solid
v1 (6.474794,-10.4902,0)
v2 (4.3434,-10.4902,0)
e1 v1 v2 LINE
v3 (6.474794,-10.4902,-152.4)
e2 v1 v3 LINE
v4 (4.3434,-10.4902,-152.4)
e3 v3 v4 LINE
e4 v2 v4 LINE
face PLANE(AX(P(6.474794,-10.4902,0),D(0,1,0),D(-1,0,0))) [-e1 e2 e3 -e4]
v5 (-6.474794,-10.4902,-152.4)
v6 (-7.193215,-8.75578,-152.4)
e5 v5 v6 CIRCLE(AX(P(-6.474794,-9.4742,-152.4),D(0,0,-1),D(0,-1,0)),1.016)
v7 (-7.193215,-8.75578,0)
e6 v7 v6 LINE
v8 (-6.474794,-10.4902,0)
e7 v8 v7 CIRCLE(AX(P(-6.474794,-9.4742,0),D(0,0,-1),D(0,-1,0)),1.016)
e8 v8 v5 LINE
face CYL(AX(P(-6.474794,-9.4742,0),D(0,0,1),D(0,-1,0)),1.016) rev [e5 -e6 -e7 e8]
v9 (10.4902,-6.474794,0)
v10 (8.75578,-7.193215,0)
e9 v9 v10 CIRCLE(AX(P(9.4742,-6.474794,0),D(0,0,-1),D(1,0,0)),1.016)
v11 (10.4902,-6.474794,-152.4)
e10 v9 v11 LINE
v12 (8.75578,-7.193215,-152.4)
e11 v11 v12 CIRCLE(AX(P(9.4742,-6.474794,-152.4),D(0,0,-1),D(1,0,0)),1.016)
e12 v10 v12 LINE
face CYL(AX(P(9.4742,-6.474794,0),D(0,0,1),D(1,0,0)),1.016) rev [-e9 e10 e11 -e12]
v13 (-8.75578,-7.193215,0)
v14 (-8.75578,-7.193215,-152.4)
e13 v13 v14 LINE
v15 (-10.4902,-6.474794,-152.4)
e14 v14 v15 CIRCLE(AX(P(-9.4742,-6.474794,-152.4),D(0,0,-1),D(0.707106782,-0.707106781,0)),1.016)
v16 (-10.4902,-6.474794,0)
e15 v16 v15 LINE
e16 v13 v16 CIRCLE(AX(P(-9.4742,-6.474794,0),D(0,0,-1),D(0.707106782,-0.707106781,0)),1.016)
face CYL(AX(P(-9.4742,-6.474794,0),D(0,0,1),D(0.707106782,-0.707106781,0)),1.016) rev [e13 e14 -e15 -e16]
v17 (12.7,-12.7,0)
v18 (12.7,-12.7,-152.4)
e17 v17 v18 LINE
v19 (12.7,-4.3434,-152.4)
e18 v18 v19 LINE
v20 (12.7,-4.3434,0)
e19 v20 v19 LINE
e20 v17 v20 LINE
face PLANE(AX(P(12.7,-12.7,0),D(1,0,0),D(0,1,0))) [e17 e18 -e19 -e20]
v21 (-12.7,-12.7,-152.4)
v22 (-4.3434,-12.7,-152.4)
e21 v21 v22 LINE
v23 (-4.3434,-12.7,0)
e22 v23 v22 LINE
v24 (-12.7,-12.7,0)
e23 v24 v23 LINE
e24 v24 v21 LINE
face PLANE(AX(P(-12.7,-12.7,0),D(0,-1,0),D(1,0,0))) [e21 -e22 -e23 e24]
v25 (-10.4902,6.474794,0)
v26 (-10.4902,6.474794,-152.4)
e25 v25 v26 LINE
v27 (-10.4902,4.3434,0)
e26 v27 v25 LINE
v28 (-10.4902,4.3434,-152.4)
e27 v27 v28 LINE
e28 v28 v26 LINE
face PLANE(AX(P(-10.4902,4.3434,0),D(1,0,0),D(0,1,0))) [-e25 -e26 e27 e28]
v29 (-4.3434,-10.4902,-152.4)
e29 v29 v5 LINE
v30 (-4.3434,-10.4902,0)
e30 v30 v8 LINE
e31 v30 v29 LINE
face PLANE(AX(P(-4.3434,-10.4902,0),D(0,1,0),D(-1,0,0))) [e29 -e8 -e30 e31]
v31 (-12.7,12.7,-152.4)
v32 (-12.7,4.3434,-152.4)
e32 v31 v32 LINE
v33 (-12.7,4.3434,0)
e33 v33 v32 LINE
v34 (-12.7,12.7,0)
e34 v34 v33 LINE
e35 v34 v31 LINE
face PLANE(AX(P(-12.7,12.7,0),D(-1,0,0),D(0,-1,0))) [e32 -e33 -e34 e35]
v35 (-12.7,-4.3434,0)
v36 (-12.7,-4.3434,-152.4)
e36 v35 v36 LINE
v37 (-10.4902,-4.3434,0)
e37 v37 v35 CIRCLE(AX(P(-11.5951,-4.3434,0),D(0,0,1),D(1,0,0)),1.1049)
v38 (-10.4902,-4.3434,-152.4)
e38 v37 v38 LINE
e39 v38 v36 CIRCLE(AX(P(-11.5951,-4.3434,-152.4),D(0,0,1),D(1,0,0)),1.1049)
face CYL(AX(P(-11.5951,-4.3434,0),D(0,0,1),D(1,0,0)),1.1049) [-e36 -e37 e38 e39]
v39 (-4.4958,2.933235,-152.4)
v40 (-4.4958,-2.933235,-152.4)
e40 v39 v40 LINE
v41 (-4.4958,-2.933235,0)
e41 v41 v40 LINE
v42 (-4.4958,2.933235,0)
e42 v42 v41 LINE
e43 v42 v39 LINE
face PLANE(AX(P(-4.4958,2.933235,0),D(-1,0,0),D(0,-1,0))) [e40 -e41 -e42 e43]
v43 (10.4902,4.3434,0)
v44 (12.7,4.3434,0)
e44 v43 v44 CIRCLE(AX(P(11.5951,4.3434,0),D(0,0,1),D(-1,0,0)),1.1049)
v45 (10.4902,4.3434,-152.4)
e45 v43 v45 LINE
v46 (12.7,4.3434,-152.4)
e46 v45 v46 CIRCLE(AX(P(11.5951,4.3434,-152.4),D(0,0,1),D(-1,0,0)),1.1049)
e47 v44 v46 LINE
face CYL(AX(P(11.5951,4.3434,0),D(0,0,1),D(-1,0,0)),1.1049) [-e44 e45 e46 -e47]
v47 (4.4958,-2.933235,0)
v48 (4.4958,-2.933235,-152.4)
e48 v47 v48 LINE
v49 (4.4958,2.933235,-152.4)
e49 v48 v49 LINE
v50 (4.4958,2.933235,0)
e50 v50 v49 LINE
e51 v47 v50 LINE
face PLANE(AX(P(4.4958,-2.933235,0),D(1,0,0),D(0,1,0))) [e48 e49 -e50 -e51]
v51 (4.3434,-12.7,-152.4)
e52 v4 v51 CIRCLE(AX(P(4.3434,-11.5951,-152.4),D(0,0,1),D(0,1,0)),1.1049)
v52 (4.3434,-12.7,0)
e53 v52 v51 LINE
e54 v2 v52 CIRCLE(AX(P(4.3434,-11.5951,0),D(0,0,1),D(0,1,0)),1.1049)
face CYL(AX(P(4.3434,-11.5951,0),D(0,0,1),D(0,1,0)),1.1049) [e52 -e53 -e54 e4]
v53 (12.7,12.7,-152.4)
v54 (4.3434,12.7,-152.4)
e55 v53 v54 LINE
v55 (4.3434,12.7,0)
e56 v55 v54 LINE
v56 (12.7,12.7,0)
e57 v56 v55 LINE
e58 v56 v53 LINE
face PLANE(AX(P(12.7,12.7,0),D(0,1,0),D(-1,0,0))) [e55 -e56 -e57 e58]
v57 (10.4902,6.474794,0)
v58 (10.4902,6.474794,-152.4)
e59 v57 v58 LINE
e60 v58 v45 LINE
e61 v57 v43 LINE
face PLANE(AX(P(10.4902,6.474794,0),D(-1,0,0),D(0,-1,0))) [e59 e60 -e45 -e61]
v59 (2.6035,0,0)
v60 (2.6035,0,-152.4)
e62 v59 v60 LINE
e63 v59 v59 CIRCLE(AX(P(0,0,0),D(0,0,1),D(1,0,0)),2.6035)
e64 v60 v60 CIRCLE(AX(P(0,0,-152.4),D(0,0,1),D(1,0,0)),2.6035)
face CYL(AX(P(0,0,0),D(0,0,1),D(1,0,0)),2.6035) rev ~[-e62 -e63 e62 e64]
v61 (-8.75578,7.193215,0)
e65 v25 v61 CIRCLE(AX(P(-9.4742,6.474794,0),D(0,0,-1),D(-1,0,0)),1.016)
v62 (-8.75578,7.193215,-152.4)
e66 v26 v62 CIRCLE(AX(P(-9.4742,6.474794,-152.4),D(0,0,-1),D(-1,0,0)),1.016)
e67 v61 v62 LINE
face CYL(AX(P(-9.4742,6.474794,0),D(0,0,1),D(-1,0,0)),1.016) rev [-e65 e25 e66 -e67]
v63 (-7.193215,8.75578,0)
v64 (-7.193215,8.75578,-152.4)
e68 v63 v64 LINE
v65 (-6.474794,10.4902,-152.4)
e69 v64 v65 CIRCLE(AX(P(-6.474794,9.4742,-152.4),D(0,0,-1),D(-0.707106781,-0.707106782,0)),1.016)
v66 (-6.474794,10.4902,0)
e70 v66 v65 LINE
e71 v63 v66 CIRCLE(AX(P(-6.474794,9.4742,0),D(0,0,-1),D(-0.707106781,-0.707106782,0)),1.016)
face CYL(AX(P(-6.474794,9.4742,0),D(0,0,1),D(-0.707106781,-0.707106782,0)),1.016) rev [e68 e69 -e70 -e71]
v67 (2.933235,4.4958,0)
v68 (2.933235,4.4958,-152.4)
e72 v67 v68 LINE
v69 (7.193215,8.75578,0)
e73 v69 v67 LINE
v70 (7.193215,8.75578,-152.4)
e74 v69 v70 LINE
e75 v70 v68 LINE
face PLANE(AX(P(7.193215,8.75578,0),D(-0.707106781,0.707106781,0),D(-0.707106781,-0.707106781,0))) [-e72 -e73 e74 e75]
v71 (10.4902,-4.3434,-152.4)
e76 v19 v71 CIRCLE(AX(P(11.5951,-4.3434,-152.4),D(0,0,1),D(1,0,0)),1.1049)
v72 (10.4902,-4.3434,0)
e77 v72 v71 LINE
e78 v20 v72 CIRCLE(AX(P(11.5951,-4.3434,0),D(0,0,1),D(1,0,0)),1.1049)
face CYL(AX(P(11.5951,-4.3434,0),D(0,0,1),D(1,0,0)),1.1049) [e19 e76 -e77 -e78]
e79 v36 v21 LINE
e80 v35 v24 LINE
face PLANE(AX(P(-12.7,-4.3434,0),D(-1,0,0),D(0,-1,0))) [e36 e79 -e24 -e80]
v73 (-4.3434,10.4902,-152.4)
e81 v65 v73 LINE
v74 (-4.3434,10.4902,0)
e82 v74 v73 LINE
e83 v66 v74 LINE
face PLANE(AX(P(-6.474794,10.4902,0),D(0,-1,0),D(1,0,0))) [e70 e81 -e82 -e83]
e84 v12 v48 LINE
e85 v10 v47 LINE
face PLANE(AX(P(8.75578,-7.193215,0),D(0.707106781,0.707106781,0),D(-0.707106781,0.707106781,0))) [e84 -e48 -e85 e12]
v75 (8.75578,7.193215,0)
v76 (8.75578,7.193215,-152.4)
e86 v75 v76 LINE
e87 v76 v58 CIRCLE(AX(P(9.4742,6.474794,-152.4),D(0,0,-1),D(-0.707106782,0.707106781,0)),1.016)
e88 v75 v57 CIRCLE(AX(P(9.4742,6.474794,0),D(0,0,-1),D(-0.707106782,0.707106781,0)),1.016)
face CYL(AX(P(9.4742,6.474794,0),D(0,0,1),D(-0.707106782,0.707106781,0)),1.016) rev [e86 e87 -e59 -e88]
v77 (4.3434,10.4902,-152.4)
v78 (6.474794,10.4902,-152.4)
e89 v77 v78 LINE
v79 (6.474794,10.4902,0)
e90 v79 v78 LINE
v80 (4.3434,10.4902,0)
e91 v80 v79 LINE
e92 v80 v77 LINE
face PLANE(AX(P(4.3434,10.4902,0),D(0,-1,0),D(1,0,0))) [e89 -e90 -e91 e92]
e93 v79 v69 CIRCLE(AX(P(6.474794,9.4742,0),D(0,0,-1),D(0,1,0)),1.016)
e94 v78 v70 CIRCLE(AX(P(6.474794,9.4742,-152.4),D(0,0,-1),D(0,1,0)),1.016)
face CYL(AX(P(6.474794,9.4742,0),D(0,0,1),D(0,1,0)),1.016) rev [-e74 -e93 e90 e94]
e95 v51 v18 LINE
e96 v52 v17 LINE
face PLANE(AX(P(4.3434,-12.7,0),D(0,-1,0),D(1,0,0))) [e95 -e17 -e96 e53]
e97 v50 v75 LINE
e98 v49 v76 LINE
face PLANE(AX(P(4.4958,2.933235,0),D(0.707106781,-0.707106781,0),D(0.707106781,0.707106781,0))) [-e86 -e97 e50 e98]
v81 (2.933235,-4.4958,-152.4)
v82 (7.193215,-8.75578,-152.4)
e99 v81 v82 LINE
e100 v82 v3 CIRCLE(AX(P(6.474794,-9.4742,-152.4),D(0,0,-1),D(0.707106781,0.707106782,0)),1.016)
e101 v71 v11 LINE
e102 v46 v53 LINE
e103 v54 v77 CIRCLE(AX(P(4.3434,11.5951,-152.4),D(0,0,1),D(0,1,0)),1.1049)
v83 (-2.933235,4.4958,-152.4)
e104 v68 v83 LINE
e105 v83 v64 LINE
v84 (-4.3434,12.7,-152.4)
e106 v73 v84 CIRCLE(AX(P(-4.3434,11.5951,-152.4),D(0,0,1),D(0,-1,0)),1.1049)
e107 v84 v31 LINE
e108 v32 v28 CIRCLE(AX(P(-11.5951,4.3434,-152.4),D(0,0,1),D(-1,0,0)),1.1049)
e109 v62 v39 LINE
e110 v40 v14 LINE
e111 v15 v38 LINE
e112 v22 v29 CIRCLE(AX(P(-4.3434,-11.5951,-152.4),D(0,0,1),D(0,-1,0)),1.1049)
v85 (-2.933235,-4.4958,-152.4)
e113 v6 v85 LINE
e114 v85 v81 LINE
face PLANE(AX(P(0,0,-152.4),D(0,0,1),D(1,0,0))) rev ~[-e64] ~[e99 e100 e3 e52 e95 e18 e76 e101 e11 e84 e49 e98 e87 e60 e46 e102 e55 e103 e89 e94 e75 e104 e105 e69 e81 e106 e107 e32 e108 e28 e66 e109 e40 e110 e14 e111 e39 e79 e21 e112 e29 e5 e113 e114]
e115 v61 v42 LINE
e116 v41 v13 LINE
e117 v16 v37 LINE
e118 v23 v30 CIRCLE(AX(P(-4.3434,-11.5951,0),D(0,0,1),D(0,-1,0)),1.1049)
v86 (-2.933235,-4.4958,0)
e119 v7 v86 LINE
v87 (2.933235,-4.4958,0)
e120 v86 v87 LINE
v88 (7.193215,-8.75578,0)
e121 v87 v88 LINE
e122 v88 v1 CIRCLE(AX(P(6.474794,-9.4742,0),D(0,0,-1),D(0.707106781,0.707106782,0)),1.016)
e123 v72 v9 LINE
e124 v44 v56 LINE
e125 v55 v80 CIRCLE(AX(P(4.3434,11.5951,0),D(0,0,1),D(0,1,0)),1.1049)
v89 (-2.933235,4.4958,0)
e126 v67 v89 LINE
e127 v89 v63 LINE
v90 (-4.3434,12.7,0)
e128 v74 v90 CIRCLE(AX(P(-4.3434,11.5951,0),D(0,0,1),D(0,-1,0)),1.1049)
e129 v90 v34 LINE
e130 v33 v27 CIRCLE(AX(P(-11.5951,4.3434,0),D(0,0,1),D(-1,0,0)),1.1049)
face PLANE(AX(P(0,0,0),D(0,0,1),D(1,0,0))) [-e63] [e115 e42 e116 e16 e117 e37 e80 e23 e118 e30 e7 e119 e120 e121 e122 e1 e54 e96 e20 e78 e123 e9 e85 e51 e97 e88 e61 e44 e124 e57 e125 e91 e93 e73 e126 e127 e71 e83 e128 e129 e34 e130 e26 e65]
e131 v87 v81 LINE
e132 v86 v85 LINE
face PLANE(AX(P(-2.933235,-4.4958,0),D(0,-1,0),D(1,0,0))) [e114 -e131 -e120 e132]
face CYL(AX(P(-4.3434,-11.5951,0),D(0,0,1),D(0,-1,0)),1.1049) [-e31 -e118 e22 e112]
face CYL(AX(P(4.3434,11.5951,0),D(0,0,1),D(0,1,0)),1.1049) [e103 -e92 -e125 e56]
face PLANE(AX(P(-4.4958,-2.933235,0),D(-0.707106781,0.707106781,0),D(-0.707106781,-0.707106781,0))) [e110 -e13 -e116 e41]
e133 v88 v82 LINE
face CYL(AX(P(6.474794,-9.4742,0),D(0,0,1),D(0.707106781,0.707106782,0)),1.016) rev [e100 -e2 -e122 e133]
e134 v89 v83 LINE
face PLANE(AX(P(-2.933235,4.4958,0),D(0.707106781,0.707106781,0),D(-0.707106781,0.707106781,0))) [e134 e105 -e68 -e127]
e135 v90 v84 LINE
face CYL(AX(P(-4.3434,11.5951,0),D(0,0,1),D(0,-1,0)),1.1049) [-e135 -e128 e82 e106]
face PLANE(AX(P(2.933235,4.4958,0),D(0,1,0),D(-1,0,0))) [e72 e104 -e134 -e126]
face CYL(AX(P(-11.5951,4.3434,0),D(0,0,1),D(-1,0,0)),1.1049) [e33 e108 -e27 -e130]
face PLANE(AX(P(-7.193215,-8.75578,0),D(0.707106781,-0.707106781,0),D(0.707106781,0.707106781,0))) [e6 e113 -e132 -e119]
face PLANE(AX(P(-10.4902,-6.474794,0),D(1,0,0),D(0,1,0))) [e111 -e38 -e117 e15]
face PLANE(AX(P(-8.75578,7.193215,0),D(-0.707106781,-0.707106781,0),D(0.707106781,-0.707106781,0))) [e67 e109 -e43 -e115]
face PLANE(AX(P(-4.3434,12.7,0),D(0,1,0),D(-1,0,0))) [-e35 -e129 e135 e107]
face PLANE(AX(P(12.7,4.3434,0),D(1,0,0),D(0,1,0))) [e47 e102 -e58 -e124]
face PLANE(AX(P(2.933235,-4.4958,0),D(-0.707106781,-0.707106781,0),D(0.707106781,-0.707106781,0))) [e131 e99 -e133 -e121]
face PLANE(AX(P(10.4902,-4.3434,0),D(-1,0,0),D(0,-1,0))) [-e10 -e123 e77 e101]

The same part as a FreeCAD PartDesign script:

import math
import FreeCAD as App
import Part
import Sketcher
from FreeCAD import Vector
Q = App.Units.Quantity

doc = App.newDocument("Part")
body = doc.addObject("PartDesign::Body", "Body")

# Sketch on XY plane
sketch1 = body.newObject("Sketcher::SketchObject", "Sketch")
sketch1.AttachmentSupport = (doc.getObject("XY_Plane"), [""])
sketch1.MapMode = "FlatFace"
sketch1.addGeometry([
    Part.LineSegment(Vector(-12.7, -12.7, 0), Vector(-4.3, -12.7, 0)),  # 0
    Part.ArcOfCircle(Part.Circle(Vector(-4.3, -11.6, 0), Vector(0, 0, 1), 1.1), math.radians(-90), math.radians(90)),  # 1
    Part.LineSegment(Vector(-4.3, -10.5, 0), Vector(-6.5, -10.5, 0)),  # 2
    Part.ArcOfCircle(Part.Circle(Vector(-6.5, -9.5, 0), Vector(0, 0, 1), 1), math.radians(135), math.radians(270)),  # 3
    Part.LineSegment(Vector(-7.2, -8.8, 0), Vector(-2.9, -4.5, 0)),  # 4
    Part.LineSegment(Vector(-2.9, -4.5, 0), Vector(2.9, -4.5, 0)),  # 5
    Part.LineSegment(Vector(2.9, -4.5, 0), Vector(7.2, -8.8, 0)),  # 6
    Part.ArcOfCircle(Part.Circle(Vector(6.5, -9.5, 0), Vector(0, 0, 1), 1), math.radians(-90), math.radians(45)),  # 7
    Part.LineSegment(Vector(6.5, -10.5, 0), Vector(4.3, -10.5, 0)),  # 8
    Part.ArcOfCircle(Part.Circle(Vector(4.3, -11.6, 0), Vector(0, 0, 1), 1.1), math.radians(90), math.radians(270)),  # 9
    Part.LineSegment(Vector(4.3, -12.7, 0), Vector(12.7, -12.7, 0)),  # 10
    Part.LineSegment(Vector(12.7, -12.7, 0), Vector(12.7, -4.3, 0)),  # 11
    Part.ArcOfCircle(Part.Circle(Vector(11.6, -4.3, 0), Vector(0, 0, 1), 1.1), math.radians(0), math.radians(180)),  # 12
    Part.LineSegment(Vector(10.5, -4.3, 0), Vector(10.5, -6.5, 0)),  # 13
    Part.ArcOfCircle(Part.Circle(Vector(9.5, -6.5, 0), Vector(0, 0, 1), 1), math.radians(-135), math.radians(0)),  # 14
    Part.LineSegment(Vector(8.8, -7.2, 0), Vector(4.5, -2.9, 0)),  # 15
    Part.LineSegment(Vector(4.5, -2.9, 0), Vector(4.5, 2.9, 0)),  # 16
    Part.LineSegment(Vector(4.5, 2.9, 0), Vector(8.8, 7.2, 0)),  # 17
    Part.ArcOfCircle(Part.Circle(Vector(9.5, 6.5, 0), Vector(0, 0, 1), 1), math.radians(0), math.radians(135)),  # 18
    Part.LineSegment(Vector(10.5, 6.5, 0), Vector(10.5, 4.3, 0)),  # 19
    Part.ArcOfCircle(Part.Circle(Vector(11.6, 4.3, 0), Vector(0, 0, 1), 1.1), math.radians(180), math.radians(360)),  # 20
    Part.LineSegment(Vector(12.7, 4.3, 0), Vector(12.7, 12.7, 0)),  # 21
    Part.LineSegment(Vector(12.7, 12.7, 0), Vector(4.3, 12.7, 0)),  # 22
    Part.ArcOfCircle(Part.Circle(Vector(4.3, 11.6, 0), Vector(0, 0, 1), 1.1), math.radians(90), math.radians(270)),  # 23
    Part.LineSegment(Vector(4.3, 10.5, 0), Vector(6.5, 10.5, 0)),  # 24
    Part.ArcOfCircle(Part.Circle(Vector(6.5, 9.5, 0), Vector(0, 0, 1), 1), math.radians(-45), math.radians(90)),  # 25
    Part.LineSegment(Vector(7.2, 8.8, 0), Vector(2.9, 4.5, 0)),  # 26
    Part.LineSegment(Vector(2.9, 4.5, 0), Vector(-2.9, 4.5, 0)),  # 27
    Part.LineSegment(Vector(-2.9, 4.5, 0), Vector(-7.2, 8.8, 0)),  # 28
    Part.ArcOfCircle(Part.Circle(Vector(-6.5, 9.5, 0), Vector(0, 0, 1), 1), math.radians(90), math.radians(225)),  # 29
    Part.LineSegment(Vector(-6.5, 10.5, 0), Vector(-4.3, 10.5, 0)),  # 30
    Part.ArcOfCircle(Part.Circle(Vector(-4.3, 11.6, 0), Vector(0, 0, 1), 1.1), math.radians(-90), math.radians(90)),  # 31
    Part.LineSegment(Vector(-4.3, 12.7, 0), Vector(-12.7, 12.7, 0)),  # 32
    Part.LineSegment(Vector(-12.7, 12.7, 0), Vector(-12.7, 4.3, 0)),  # 33
    Part.ArcOfCircle(Part.Circle(Vector(-11.6, 4.3, 0), Vector(0, 0, 1), 1.1), math.radians(180), math.radians(360)),  # 34
    Part.LineSegment(Vector(-10.5, 4.3, 0), Vector(-10.5, 6.5, 0)),  # 35
    Part.ArcOfCircle(Part.Circle(Vector(-9.5, 6.5, 0), Vector(0, 0, 1), 1), math.radians(45), math.radians(180)),  # 36
    Part.LineSegment(Vector(-8.8, 7.2, 0), Vector(-4.5, 2.9, 0)),  # 37
    Part.LineSegment(Vector(-4.5, 2.9, 0), Vector(-4.5, -2.9, 0)),  # 38
    Part.LineSegment(Vector(-4.5, -2.9, 0), Vector(-8.8, -7.2, 0)),  # 39
    Part.ArcOfCircle(Part.Circle(Vector(-9.5, -6.5, 0), Vector(0, 0, 1), 1), math.radians(180), math.radians(315)),  # 40
    Part.LineSegment(Vector(-10.5, -6.5, 0), Vector(-10.5, -4.3, 0)),  # 41
    Part.ArcOfCircle(Part.Circle(Vector(-11.6, -4.3, 0), Vector(0, 0, 1), 1.1), math.radians(0), math.radians(180)),  # 42
    Part.LineSegment(Vector(-12.7, -4.3, 0), Vector(-12.7, -12.7, 0)),  # 43
    Part.Circle(Vector(0, 0, 0), Vector(0, 0, 1), 2.6),  # 44
], False)
sketch1.addConstraint([
    Sketcher.Constraint("Tangent", 0, 2, 1, 1),
    Sketcher.Constraint("Tangent", 1, 2, 2, 1),
    Sketcher.Constraint("Tangent", 2, 2, 3, 2),
    Sketcher.Constraint("Tangent", 3, 1, 4, 1),
    Sketcher.Constraint("Coincident", 4, 2, 5, 1),
    Sketcher.Constraint("Coincident", 5, 2, 6, 1),
    Sketcher.Constraint("Tangent", 6, 2, 7, 2),
    Sketcher.Constraint("Tangent", 7, 1, 8, 1),
    Sketcher.Constraint("Tangent", 8, 2, 9, 1),
    Sketcher.Constraint("Tangent", 9, 2, 10, 1),
    Sketcher.Constraint("Coincident", 10, 2, 11, 1),
    Sketcher.Constraint("Tangent", 11, 2, 12, 1),
    Sketcher.Constraint("Tangent", 12, 2, 13, 1),
    Sketcher.Constraint("Tangent", 13, 2, 14, 2),
    Sketcher.Constraint("Tangent", 14, 1, 15, 1),
    Sketcher.Constraint("Coincident", 15, 2, 16, 1),
    Sketcher.Constraint("Coincident", 16, 2, 17, 1),
    Sketcher.Constraint("Tangent", 17, 2, 18, 2),
    Sketcher.Constraint("Tangent", 18, 1, 19, 1),
    Sketcher.Constraint("Tangent", 19, 2, 20, 1),
    Sketcher.Constraint("Tangent", 20, 2, 21, 1),
    Sketcher.Constraint("Coincident", 21, 2, 22, 1),
    Sketcher.Constraint("Tangent", 22, 2, 23, 1),
    Sketcher.Constraint("Tangent", 23, 2, 24, 1),
    Sketcher.Constraint("Tangent", 24, 2, 25, 2),
    Sketcher.Constraint("Tangent", 25, 1, 26, 1),
    Sketcher.Constraint("Coincident", 26, 2, 27, 1),
    Sketcher.Constraint("Coincident", 27, 2, 28, 1),
    Sketcher.Constraint("Tangent", 28, 2, 29, 2),
    Sketcher.Constraint("Tangent", 29, 1, 30, 1),
    Sketcher.Constraint("Tangent", 30, 2, 31, 1),
    Sketcher.Constraint("Tangent", 31, 2, 32, 1),
    Sketcher.Constraint("Coincident", 32, 2, 33, 1),
    Sketcher.Constraint("Tangent", 33, 2, 34, 1),
    Sketcher.Constraint("Tangent", 34, 2, 35, 1),
    Sketcher.Constraint("Tangent", 35, 2, 36, 2),
    Sketcher.Constraint("Tangent", 36, 1, 37, 1),
    Sketcher.Constraint("Coincident", 37, 2, 38, 1),
    Sketcher.Constraint("Coincident", 38, 2, 39, 1),
    Sketcher.Constraint("Tangent", 39, 2, 40, 2),
    Sketcher.Constraint("Tangent", 40, 1, 41, 1),
    Sketcher.Constraint("Tangent", 41, 2, 42, 1),
    Sketcher.Constraint("Tangent", 42, 2, 43, 1),
    Sketcher.Constraint("Coincident", 43, 2, 0, 1),
    Sketcher.Constraint("Horizontal", 0),
    Sketcher.Constraint("Horizontal", 2),
    Sketcher.Constraint("Horizontal", 5),
    Sketcher.Constraint("Horizontal", 8),
    Sketcher.Constraint("Horizontal", 10),
    Sketcher.Constraint("Vertical", 11),
    Sketcher.Constraint("Vertical", 13),
    Sketcher.Constraint("Vertical", 16),
    Sketcher.Constraint("Vertical", 19),
    Sketcher.Constraint("Vertical", 21),
    Sketcher.Constraint("Horizontal", 22),
    Sketcher.Constraint("Horizontal", 24),
    Sketcher.Constraint("Horizontal", 27),
    Sketcher.Constraint("Horizontal", 30),
    Sketcher.Constraint("Horizontal", 32),
    Sketcher.Constraint("Vertical", 33),
    Sketcher.Constraint("Vertical", 35),
    Sketcher.Constraint("Vertical", 38),
    Sketcher.Constraint("Vertical", 41),
    Sketcher.Constraint("Vertical", 43),
    Sketcher.Constraint("Coincident", 44, 3, -1, 1),
    Sketcher.Constraint("Equal", 3, 7),
    Sketcher.Constraint("Equal", 1, 9),
    Sketcher.Constraint("Equal", 9, 12),
    Sketcher.Constraint("Equal", 7, 14),
    Sketcher.Constraint("Equal", 14, 18),
    Sketcher.Constraint("Equal", 12, 20),
    Sketcher.Constraint("Equal", 20, 23),
    Sketcher.Constraint("Equal", 18, 25),
    Sketcher.Constraint("Equal", 25, 29),
    Sketcher.Constraint("Equal", 23, 31),
    Sketcher.Constraint("Equal", 31, 34),
    Sketcher.Constraint("Equal", 29, 36),
    Sketcher.Constraint("Equal", 36, 40),
    Sketcher.Constraint("Equal", 34, 42),
    Sketcher.Constraint("Symmetric", 1, 3, 23, 3, -1, 1),
    Sketcher.Constraint("Symmetric", 7, 3, 29, 3, -1, 1),
    Sketcher.Constraint("Symmetric", 12, 3, 34, 3, -1, 1),
    Sketcher.Constraint("Symmetric", 18, 3, 40, 3, -1, 1),
    Sketcher.Constraint("Symmetric", 3, 1, 25, 1, -1, 1),
    Sketcher.Constraint("Symmetric", 5, 2, 27, 2, -1, 1),
    Sketcher.Constraint("Symmetric", 14, 1, 36, 1, -1, 1),
    Sketcher.Constraint("Symmetric", 16, 2, 38, 2, -1, 1),
    Sketcher.Constraint("Symmetric", 3, 3, 7, 3, -2),
    Sketcher.Constraint("Symmetric", 20, 3, 34, 3, -2),
    Sketcher.Constraint("Symmetric", 17, 2, 36, 1, -2),
    Sketcher.Constraint("Perpendicular", 4, 6),
    Sketcher.Constraint("Parallel", 6, 15),
    Sketcher.Constraint("Perpendicular", 15, 17),
    Sketcher.Constraint("Horizontal", 12, 3, 42, 3),
    Sketcher.Constraint("Vertical", 9, 3, 23, 3),
    Sketcher.Constraint("Vertical", 1, 3, 31, 3),
    Sketcher.Constraint("Equal", 32, 11),
    Sketcher.Constraint("Equal", 30, 13),
    Sketcher.Constraint("Equal", 27, 16),
    Sketcher.Constraint("Equal", 6, 15),
    Sketcher.Constraint("Radius", 3, Q("0.04 in")),
    Sketcher.Constraint("Diameter", 44, Q("0.205 in")),
    Sketcher.Constraint("DistanceY", 0, 2, -1, 1, Q("0.5 in")),
    Sketcher.Constraint("Radius", 1, Q("0.0435 in")),
    Sketcher.Constraint("DistanceX", 0, 1, 0, 2, Q("0.329 in")),
    Sketcher.Constraint("DistanceY", 4, 2, -1, 1, Q("0.177 in")),
    Sketcher.Constraint("DistanceX", 5, 1, 5, 2, 5.866471),
])
pad1 = body.newObject("PartDesign::Pad", "Pad")
pad1.Profile = sketch1
pad1.Length = Q("6 in")
pad1.Reversed = True

doc.recompute()
